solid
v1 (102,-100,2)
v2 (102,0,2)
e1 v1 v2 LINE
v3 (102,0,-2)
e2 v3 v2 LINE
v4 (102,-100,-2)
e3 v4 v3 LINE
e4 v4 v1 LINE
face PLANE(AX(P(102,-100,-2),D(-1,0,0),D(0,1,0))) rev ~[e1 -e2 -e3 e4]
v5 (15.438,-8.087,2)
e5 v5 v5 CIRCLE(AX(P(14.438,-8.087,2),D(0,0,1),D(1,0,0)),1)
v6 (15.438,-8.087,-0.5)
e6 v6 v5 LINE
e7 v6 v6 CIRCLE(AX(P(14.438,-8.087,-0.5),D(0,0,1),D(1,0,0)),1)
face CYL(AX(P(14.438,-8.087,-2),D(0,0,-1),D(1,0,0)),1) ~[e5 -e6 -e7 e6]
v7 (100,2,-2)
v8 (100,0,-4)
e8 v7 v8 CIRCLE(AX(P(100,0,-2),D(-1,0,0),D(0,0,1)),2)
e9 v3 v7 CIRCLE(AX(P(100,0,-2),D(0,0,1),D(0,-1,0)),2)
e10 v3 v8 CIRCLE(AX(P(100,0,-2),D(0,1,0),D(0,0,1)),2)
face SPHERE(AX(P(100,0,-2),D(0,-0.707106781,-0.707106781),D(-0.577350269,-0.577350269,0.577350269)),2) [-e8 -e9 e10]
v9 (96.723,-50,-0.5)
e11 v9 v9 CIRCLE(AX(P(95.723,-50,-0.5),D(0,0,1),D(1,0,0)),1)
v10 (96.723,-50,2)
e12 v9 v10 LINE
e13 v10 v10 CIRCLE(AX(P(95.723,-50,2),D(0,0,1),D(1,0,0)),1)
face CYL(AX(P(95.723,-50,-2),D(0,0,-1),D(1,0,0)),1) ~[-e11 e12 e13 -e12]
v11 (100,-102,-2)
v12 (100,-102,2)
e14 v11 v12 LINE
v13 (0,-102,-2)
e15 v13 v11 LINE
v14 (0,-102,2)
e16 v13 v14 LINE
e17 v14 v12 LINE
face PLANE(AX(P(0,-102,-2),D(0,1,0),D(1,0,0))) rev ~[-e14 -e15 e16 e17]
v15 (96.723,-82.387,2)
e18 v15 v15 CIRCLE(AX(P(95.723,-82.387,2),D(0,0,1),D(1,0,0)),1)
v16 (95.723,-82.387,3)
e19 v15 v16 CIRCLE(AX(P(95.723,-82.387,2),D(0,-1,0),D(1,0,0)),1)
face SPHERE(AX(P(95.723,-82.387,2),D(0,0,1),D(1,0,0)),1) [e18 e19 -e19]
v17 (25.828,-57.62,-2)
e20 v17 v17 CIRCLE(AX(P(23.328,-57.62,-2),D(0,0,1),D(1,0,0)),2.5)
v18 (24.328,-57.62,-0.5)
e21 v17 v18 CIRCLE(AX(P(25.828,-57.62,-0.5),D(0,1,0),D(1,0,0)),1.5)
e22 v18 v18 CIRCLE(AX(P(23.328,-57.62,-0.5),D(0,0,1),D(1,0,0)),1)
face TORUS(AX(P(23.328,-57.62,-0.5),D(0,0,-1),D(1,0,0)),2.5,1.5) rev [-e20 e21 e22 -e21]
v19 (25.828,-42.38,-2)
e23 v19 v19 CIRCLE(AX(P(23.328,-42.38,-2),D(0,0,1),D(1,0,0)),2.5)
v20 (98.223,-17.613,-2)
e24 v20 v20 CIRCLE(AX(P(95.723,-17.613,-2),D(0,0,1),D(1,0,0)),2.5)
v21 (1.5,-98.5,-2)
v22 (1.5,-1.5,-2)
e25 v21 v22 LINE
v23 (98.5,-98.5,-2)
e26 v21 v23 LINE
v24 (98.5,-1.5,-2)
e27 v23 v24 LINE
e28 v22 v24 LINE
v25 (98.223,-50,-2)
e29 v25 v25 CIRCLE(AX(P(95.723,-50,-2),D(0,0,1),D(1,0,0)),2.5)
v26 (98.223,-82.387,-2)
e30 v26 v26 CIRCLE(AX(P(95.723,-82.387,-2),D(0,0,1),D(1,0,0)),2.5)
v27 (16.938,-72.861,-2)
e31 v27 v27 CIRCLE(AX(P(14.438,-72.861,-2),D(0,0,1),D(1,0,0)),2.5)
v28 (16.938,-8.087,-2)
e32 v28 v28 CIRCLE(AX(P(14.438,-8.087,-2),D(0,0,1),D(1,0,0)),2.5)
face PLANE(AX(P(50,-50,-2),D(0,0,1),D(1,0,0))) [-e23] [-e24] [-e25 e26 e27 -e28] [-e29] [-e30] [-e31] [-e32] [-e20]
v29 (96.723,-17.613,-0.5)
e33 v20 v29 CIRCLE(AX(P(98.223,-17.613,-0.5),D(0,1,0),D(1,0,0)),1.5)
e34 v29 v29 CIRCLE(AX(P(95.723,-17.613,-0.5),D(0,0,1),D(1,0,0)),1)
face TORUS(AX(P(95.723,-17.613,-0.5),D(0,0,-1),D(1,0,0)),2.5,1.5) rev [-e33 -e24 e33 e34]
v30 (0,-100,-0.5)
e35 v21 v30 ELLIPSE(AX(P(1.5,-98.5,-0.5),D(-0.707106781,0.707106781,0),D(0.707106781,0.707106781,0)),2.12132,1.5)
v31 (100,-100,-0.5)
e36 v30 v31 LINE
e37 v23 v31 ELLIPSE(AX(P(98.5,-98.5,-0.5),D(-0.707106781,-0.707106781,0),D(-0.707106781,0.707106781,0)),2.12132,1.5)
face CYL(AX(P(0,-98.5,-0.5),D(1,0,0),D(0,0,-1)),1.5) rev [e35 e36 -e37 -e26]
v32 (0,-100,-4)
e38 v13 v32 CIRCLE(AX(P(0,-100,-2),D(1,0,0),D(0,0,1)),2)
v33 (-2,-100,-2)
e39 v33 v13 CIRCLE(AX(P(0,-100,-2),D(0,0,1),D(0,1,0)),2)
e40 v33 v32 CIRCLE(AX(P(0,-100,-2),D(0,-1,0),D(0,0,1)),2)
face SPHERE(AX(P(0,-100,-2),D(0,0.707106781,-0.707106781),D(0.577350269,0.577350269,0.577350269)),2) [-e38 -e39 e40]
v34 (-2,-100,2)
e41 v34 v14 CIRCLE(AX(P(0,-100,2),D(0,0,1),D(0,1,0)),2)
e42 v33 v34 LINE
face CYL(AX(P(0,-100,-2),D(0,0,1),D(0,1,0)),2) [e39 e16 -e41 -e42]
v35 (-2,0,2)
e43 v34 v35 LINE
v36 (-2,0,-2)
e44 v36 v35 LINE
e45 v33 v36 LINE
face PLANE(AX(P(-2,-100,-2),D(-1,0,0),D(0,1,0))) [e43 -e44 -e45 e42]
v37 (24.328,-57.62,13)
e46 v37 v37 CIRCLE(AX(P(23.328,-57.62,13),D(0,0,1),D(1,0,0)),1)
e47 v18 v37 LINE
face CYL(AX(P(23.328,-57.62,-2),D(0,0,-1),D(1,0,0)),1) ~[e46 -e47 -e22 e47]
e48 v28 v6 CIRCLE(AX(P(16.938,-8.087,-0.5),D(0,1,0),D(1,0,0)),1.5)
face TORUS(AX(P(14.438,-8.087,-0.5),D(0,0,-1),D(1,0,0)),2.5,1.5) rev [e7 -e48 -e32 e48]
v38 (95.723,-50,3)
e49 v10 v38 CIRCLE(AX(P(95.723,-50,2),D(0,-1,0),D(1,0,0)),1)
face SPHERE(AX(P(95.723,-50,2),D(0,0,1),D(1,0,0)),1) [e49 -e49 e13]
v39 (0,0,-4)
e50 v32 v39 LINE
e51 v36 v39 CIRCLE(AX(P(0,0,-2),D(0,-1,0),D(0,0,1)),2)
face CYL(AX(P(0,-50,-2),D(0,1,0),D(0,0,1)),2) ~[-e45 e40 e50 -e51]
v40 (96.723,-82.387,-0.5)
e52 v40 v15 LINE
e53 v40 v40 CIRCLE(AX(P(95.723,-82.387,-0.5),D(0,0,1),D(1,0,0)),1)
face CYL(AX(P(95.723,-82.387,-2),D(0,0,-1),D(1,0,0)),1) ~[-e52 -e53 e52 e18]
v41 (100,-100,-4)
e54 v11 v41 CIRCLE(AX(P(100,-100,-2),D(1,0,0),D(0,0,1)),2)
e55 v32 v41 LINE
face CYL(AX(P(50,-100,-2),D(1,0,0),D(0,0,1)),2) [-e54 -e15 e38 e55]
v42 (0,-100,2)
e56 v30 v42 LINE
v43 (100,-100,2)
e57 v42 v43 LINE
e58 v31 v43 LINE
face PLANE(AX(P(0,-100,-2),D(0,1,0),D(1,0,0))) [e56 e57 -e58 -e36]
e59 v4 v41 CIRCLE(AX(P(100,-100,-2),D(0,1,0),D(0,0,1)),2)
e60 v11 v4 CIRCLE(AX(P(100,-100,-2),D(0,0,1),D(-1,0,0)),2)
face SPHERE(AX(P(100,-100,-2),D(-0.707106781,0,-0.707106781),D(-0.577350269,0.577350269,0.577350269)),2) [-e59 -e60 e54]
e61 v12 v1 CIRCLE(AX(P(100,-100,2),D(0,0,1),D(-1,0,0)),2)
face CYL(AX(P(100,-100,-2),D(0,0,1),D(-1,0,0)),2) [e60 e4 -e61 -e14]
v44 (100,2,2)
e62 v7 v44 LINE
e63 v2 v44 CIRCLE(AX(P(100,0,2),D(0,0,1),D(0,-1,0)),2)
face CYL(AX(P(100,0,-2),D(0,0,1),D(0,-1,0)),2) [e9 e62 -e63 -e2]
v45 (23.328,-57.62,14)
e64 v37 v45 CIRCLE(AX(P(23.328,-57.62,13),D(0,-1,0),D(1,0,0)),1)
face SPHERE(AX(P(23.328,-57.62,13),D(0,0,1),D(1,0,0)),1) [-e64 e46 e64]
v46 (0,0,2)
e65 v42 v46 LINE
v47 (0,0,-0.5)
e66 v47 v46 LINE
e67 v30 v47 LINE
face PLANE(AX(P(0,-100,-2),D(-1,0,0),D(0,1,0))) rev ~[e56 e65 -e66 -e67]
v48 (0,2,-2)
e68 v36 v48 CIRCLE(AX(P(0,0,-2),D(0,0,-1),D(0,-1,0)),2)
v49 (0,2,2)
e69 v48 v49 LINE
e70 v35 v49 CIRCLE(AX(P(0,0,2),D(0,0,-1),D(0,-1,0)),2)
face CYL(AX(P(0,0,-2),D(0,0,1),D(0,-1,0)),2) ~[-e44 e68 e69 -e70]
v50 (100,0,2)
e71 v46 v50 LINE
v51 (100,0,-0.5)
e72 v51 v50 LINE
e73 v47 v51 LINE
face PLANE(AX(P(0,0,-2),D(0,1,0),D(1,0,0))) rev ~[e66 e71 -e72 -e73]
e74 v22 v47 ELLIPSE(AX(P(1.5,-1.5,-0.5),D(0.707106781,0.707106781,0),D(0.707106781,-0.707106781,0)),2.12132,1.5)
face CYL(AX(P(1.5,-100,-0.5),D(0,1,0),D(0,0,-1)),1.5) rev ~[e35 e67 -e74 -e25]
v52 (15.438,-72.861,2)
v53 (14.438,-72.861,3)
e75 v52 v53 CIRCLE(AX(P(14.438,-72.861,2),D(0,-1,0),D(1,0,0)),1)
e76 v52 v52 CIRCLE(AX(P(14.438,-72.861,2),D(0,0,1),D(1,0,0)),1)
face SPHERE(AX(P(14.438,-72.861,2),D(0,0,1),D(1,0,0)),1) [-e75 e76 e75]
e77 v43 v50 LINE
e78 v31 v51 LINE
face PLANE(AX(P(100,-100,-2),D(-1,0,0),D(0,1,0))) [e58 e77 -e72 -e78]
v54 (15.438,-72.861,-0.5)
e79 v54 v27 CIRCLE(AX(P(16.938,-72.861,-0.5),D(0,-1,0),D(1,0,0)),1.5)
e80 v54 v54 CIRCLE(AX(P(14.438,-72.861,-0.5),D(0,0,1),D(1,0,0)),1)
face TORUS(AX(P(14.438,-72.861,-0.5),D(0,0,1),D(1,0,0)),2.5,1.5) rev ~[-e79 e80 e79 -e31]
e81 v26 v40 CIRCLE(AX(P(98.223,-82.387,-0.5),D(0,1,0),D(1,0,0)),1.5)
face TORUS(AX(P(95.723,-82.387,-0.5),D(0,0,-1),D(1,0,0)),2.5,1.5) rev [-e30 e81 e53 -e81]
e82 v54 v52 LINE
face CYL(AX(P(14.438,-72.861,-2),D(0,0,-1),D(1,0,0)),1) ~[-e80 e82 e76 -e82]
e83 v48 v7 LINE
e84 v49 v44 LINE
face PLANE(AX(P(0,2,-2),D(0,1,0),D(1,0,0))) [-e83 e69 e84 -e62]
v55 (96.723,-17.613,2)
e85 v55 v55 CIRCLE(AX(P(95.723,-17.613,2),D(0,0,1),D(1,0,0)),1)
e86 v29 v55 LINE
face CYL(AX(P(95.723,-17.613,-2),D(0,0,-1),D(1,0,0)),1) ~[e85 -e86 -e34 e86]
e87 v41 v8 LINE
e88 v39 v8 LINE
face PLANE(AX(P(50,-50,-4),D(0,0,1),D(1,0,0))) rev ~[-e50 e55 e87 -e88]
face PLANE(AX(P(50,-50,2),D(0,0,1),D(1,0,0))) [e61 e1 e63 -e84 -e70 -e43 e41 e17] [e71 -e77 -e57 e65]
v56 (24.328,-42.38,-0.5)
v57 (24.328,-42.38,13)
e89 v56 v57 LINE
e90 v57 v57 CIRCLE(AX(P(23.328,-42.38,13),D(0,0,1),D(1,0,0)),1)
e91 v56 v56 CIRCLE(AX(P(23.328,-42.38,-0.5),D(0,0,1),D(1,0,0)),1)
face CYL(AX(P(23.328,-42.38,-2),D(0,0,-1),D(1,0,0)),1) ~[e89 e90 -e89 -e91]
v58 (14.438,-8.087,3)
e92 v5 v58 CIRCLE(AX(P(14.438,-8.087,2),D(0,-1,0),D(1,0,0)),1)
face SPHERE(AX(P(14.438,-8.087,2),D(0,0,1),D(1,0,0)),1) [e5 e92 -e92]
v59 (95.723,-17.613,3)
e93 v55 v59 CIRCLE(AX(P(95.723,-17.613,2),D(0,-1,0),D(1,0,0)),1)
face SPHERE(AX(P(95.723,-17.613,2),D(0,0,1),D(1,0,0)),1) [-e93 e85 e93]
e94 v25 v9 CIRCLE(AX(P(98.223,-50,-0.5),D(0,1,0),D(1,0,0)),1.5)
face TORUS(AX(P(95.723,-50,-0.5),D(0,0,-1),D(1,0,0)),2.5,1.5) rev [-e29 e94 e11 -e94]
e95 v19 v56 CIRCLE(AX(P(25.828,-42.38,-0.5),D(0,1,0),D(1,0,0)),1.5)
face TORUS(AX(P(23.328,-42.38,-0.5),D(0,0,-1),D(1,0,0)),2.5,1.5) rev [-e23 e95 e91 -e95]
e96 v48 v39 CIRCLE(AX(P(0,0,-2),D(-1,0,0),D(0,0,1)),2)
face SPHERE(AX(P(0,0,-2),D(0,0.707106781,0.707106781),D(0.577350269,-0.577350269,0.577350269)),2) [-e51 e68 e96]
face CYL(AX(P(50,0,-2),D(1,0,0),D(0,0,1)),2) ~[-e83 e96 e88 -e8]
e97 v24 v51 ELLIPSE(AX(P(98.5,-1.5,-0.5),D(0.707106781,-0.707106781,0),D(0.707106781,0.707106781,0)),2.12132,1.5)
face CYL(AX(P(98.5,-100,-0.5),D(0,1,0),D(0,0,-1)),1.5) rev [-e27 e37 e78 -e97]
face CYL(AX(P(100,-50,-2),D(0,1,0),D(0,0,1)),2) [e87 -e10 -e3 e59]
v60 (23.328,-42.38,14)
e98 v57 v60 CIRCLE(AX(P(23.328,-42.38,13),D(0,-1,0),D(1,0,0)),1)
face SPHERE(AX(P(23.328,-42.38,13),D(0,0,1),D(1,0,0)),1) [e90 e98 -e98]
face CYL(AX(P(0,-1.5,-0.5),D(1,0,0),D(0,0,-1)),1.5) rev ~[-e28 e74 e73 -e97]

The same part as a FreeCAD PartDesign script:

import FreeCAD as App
import Part
import Sketcher
Q = App.Units.Quantity


def edges_at(feature, points):
    """Names of the edges that pass closest to the given points."""
    edges = feature.Shape.Edges
    near = lambda p: min(range(len(edges)), key=lambda i: edges[i].distToShape(Part.Vertex(*p))[0])
    return sorted({f"Edge{near(p) + 1}" for p in points})


def faces_at(feature, points):
    """Names of the faces that lie closest to the given points."""
    faces = feature.Shape.Faces
    near = lambda p: min(range(len(faces)), key=lambda i: faces[i].distToShape(Part.Vertex(*p))[0])
    return sorted({f"Face{near(p) + 1}" for p in points})


def add_polygon(sketch, points):
    """Adds a closed chain of lines whose ends are joined by coincident constraints."""
    first, n = sketch.GeometryCount, len(points)
    for a, b in zip(points, points[1:] + points[:1]):
        sketch.addGeometry(Part.LineSegment(App.Vector(*a, 0), App.Vector(*b, 0)), False)
    for i in range(n):
        sketch.addConstraint(Sketcher.Constraint("Coincident", first + i, 2, first + (i + 1) % n, 1))

doc = App.newDocument("Part")
body = doc.addObject("PartDesign::Body", "Body")

sketch1 = doc.addObject("Sketcher::SketchObject", "Sketch")
body.addObject(sketch1)
sketch1.AttachmentSupport = (doc.XY_Plane, [""])
sketch1.MapMode = "FlatFace"
add_polygon(sketch1, [(0, 0), (0, -100), (100, -100), (100, 0)])
sketch1.addConstraint([
    Sketcher.Constraint("Vertical", 0),
    Sketcher.Constraint("Horizontal", 1),
    Sketcher.Constraint("Vertical", 2),
    Sketcher.Constraint("Horizontal", 3),
    Sketcher.Constraint("Coincident", 3, 2, -1, 1),
    Sketcher.Constraint("Equal", 3, 0),
    Sketcher.Constraint("DistanceX", 1, 1, 1, 2, Q("100 mm")),
])
pad1 = doc.addObject("PartDesign::Pad", "Pad")
body.addObject(pad1)
pad1.Profile = sketch1
pad1.Length = 4
doc.recompute()

thickness = doc.addObject("PartDesign::Thickness", "Thickness")
body.addObject(thickness)
thickness.Base = (pad1, faces_at(pad1, [(50, -50, 4)]))
thickness.Value = 2
thickness.Reversed = False
thickness.Join = "Arc"

sketch2 = doc.addObject("Sketcher::SketchObject", "Sketch001")
body.addObject(sketch2)
sketch2.AttachmentSupport = (doc.XY_Plane, [""])
sketch2.MapMode = "FlatFace"
sketch2.addGeometry([
    Part.Circle(App.Vector(14.4, -8.1, 0), App.Vector(0, 0, 1), 1),
    Part.Circle(App.Vector(95.7, -17.6, 0), App.Vector(0, 0, 1), 1),
    Part.Circle(App.Vector(95.7, -50, 0), App.Vector(0, 0, 1), 1),
    Part.Circle(App.Vector(95.7, -82.4, 0), App.Vector(0, 0, 1), 1),
    Part.Circle(App.Vector(14.4, -72.9, 0), App.Vector(0, 0, 1), 1),
], False)
sketch2.addConstraint([
    Sketcher.Constraint("Equal", 0, 1),
    Sketcher.Constraint("Equal", 1, 2),
    Sketcher.Constraint("Equal", 2, 3),
    Sketcher.Constraint("Equal", 3, 4),
    Sketcher.Constraint("Vertical", 1, 3, 2, 3),
    Sketcher.Constraint("Vertical", 2, 3, 3, 3),
    Sketcher.Constraint("Vertical", 0, 3, 4, 3),
    Sketcher.Constraint("Diameter", 0, Q("2 mm")),
    Sketcher.Constraint("DistanceY", 2, 3, -1, 1, Q("50 mm")),
    Sketcher.Constraint("DistanceY", 3, 3, 0, 3, Q("74.3 mm")),
    Sketcher.Constraint("DistanceX", -1, 1, 0, 3, Q("14.438 mm")),
    Sketcher.Constraint("DistanceY", 0, 3, -1, 1, Q("8.087 mm")),
    Sketcher.Constraint("DistanceX", -1, 1, 1, 3, Q("95.723 mm")),
    Sketcher.Constraint("DistanceY", 1, 3, -1, 1, Q("17.613 mm")),
    Sketcher.Constraint("DistanceY", 4, 3, -1, 1, Q("72.861 mm")),
])
pad2 = doc.addObject("PartDesign::Pad", "Pad001")
body.addObject(pad2)
pad2.Profile = sketch2
pad2.Length = 5

sketch3 = doc.addObject("Sketcher::SketchObject", "Sketch002")
body.addObject(sketch3)
sketch3.AttachmentSupport = (doc.XY_Plane, [""])
sketch3.MapMode = "FlatFace"
sketch3.addGeometry([
    Part.Circle(App.Vector(23.3, -42.4, 0), App.Vector(0, 0, 1), 1),
    Part.Circle(App.Vector(23.3, -57.6, 0), App.Vector(0, 0, 1), 1),
], False)
sketch3.addConstraint([
    Sketcher.Constraint("Equal", 0, 1),
    Sketcher.Constraint("Vertical", 0, 3, 1, 3),
    Sketcher.Constraint("Diameter", 0, Q("2 mm")),
    Sketcher.Constraint("DistanceY", 0, 3, -1, 1, Q("42.38 mm")),
    Sketcher.Constraint("DistanceY", 1, 3, -1, 1, Q("57.62 mm")),
    Sketcher.Constraint("DistanceX", -1, 1, 0, 3, Q("23.328 mm")),
])
pad3 = doc.addObject("PartDesign::Pad", "Pad002")
body.addObject(pad3)
pad3.Profile = sketch3
pad3.Length = 16
doc.recompute()

fillet = doc.addObject("PartDesign::Fillet", "Fillet")
body.addObject(fillet)
fillet.Base = (pad3, edges_at(pad3, [
    (22.328, -57.62, 16),
    (22.328, -42.38, 16),
    (13.438, -8.087, 5),
    (13.438, -72.861, 5),
    (94.723, -82.387, 5),
    (94.723, -50, 5),
    (94.723, -17.613, 5),
]))
fillet.Radius = 1
doc.recompute()

fillet2 = doc.addObject("PartDesign::Fillet", "Fillet001")
body.addObject(fillet2)
fillet2.Base = (fillet, edges_at(fillet, [
    (50, 0, 0),
    (0, -50, 0),
    (100, -50, 0),
    (50, -100, 0),
    (94.723, -17.613, 0),
    (94.723, -50, 0),
    (13.438, -72.861, 0),
    (22.328, -42.38, 0),
    (22.328, -57.62, 0),
    (94.723, -82.387, 0),
    (13.438, -8.087, 0),
]))
fillet2.Radius = 1.5
body2 = doc.addObject("PartDesign::Body", "Body001")
doc.recompute()

body.Placement = App.Placement(App.Vector(0, 0, -2), App.Rotation(App.Vector(0, 0, 1), 0))
boolean = doc.addObject("PartDesign::Boolean", "Boolean")
body2.addObject(boolean)
boolean.Type = "Fuse"
boolean.addObjects([body])

doc.recompute()
